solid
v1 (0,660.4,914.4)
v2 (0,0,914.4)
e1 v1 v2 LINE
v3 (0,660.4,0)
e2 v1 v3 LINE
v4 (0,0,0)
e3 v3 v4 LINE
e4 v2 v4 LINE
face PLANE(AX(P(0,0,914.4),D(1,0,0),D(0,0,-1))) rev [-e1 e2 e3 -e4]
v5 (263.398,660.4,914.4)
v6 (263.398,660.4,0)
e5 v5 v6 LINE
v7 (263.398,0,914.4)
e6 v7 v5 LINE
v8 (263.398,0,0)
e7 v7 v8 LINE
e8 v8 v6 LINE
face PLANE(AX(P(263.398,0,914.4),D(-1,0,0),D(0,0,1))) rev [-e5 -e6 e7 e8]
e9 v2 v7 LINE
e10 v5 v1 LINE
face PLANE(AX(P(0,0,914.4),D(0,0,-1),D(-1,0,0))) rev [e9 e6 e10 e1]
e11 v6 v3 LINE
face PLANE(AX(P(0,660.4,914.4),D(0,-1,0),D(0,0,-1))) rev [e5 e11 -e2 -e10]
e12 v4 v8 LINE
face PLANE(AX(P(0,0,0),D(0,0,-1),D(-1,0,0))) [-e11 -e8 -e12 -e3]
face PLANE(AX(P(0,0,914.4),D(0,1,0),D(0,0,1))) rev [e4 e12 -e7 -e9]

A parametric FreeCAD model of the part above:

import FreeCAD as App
import Part
import Sketcher

V = App.Vector
Q = App.Units.Quantity


def add_polygon(sketch, points):
    """Adds a closed chain of lines whose ends are joined by coincident constraints."""
    first, n = sketch.GeometryCount, len(points)
    for a, b in zip(points, points[1:] + points[:1]):
        sketch.addGeometry(Part.LineSegment(App.Vector(*a, 0), App.Vector(*b, 0)), False)
    for i in range(n):
        sketch.addConstraint(Sketcher.Constraint("Coincident", first + i, 2, first + (i + 1) % n, 1))

doc = App.newDocument("Part")
body = doc.addObject("PartDesign::Body", "Body")

sketch1 = body.newObject("Sketcher::SketchObject", "Sketch")
sketch1.AttachmentSupport = (doc.getObject("XY_Plane"), [""])
sketch1.MapMode = "FlatFace"
add_polygon(sketch1, [(0, 660), (0, 0), (263, 0), (263, 660)])
sketch1.addConstraint([
    Sketcher.Constraint("Vertical", 0),
    Sketcher.Constraint("Horizontal", 1),
    Sketcher.Constraint("Vertical", 2),
    Sketcher.Constraint("Horizontal", 3),
    Sketcher.Constraint("Coincident", 0, 2, -1, 1),
    Sketcher.Constraint("DistanceY", 0, 2, 0, 1, Q("26 in")),
    Sketcher.Constraint("DistanceX", 1, 1, 1, 2, Q("10.37 in")),
])
pad1 = body.newObject("PartDesign::Pad", "Pad")
pad1.Profile = sketch1
pad1.Length = Q("36 in")

doc.recompute()
